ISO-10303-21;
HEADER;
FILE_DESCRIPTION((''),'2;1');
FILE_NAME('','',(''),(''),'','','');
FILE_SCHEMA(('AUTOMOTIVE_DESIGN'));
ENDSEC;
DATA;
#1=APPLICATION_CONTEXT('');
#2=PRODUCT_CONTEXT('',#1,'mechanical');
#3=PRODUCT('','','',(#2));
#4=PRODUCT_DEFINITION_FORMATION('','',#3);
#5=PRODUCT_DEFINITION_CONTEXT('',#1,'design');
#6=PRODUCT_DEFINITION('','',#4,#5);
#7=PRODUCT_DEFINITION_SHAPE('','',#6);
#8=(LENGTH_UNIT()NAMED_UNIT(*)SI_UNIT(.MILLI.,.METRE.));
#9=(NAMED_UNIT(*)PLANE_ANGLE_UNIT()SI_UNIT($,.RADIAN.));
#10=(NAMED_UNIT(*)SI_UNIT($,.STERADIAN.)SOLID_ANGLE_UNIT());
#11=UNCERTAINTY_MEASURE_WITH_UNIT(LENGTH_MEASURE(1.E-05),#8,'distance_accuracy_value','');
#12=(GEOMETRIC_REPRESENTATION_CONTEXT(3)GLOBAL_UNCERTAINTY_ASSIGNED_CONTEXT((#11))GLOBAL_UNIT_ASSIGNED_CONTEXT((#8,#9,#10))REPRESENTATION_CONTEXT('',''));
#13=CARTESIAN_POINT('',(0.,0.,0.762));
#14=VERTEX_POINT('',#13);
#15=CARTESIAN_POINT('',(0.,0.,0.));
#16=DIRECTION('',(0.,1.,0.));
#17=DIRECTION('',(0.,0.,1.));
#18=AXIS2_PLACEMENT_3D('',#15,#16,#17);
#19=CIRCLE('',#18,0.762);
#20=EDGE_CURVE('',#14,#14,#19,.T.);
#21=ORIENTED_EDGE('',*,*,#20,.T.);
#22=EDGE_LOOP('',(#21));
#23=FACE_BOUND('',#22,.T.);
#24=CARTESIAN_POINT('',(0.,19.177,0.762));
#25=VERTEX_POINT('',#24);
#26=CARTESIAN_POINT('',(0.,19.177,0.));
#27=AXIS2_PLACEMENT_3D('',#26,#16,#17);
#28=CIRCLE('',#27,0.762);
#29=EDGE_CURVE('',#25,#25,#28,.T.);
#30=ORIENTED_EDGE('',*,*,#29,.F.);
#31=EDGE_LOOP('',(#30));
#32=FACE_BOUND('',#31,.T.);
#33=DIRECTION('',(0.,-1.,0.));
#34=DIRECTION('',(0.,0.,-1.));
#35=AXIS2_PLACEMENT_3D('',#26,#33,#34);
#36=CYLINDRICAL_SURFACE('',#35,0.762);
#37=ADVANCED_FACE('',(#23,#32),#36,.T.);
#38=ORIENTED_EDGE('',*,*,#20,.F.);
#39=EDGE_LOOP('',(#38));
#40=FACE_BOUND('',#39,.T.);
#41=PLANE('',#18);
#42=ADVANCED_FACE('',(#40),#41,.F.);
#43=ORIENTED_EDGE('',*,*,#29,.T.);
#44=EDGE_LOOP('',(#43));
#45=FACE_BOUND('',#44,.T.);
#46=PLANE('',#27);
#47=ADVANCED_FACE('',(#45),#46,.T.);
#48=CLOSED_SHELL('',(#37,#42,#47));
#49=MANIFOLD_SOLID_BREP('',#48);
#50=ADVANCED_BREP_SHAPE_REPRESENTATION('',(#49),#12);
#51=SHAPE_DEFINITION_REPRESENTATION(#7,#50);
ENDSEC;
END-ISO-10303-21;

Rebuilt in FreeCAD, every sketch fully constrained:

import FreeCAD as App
import Part
import Sketcher

V = App.Vector
Q = App.Units.Quantity

doc = App.newDocument("Part")
body = doc.addObject("PartDesign::Body", "Body")

# Sketch on XZ plane
sketch1 = body.newObject("Sketcher::SketchObject", "Sketch")
sketch1.AttachmentSupport = (doc.getObject("XZ_Plane"), [""])
sketch1.MapMode = "FlatFace"
sketch1.addGeometry(Part.Circle(V(0, 0, 0), V(0, 0, 1), 0.762), False)
sketch1.addConstraint([
    Sketcher.Constraint("Coincident", 0, 3, -1, 1),
    Sketcher.Constraint("Diameter", 0, Q("0.06 in")),
])
pad1 = body.newObject("PartDesign::Pad", "Pad")
pad1.Profile = sketch1
pad1.Length = Q("0.755 in")
pad1.Reversed = True

doc.recompute()
